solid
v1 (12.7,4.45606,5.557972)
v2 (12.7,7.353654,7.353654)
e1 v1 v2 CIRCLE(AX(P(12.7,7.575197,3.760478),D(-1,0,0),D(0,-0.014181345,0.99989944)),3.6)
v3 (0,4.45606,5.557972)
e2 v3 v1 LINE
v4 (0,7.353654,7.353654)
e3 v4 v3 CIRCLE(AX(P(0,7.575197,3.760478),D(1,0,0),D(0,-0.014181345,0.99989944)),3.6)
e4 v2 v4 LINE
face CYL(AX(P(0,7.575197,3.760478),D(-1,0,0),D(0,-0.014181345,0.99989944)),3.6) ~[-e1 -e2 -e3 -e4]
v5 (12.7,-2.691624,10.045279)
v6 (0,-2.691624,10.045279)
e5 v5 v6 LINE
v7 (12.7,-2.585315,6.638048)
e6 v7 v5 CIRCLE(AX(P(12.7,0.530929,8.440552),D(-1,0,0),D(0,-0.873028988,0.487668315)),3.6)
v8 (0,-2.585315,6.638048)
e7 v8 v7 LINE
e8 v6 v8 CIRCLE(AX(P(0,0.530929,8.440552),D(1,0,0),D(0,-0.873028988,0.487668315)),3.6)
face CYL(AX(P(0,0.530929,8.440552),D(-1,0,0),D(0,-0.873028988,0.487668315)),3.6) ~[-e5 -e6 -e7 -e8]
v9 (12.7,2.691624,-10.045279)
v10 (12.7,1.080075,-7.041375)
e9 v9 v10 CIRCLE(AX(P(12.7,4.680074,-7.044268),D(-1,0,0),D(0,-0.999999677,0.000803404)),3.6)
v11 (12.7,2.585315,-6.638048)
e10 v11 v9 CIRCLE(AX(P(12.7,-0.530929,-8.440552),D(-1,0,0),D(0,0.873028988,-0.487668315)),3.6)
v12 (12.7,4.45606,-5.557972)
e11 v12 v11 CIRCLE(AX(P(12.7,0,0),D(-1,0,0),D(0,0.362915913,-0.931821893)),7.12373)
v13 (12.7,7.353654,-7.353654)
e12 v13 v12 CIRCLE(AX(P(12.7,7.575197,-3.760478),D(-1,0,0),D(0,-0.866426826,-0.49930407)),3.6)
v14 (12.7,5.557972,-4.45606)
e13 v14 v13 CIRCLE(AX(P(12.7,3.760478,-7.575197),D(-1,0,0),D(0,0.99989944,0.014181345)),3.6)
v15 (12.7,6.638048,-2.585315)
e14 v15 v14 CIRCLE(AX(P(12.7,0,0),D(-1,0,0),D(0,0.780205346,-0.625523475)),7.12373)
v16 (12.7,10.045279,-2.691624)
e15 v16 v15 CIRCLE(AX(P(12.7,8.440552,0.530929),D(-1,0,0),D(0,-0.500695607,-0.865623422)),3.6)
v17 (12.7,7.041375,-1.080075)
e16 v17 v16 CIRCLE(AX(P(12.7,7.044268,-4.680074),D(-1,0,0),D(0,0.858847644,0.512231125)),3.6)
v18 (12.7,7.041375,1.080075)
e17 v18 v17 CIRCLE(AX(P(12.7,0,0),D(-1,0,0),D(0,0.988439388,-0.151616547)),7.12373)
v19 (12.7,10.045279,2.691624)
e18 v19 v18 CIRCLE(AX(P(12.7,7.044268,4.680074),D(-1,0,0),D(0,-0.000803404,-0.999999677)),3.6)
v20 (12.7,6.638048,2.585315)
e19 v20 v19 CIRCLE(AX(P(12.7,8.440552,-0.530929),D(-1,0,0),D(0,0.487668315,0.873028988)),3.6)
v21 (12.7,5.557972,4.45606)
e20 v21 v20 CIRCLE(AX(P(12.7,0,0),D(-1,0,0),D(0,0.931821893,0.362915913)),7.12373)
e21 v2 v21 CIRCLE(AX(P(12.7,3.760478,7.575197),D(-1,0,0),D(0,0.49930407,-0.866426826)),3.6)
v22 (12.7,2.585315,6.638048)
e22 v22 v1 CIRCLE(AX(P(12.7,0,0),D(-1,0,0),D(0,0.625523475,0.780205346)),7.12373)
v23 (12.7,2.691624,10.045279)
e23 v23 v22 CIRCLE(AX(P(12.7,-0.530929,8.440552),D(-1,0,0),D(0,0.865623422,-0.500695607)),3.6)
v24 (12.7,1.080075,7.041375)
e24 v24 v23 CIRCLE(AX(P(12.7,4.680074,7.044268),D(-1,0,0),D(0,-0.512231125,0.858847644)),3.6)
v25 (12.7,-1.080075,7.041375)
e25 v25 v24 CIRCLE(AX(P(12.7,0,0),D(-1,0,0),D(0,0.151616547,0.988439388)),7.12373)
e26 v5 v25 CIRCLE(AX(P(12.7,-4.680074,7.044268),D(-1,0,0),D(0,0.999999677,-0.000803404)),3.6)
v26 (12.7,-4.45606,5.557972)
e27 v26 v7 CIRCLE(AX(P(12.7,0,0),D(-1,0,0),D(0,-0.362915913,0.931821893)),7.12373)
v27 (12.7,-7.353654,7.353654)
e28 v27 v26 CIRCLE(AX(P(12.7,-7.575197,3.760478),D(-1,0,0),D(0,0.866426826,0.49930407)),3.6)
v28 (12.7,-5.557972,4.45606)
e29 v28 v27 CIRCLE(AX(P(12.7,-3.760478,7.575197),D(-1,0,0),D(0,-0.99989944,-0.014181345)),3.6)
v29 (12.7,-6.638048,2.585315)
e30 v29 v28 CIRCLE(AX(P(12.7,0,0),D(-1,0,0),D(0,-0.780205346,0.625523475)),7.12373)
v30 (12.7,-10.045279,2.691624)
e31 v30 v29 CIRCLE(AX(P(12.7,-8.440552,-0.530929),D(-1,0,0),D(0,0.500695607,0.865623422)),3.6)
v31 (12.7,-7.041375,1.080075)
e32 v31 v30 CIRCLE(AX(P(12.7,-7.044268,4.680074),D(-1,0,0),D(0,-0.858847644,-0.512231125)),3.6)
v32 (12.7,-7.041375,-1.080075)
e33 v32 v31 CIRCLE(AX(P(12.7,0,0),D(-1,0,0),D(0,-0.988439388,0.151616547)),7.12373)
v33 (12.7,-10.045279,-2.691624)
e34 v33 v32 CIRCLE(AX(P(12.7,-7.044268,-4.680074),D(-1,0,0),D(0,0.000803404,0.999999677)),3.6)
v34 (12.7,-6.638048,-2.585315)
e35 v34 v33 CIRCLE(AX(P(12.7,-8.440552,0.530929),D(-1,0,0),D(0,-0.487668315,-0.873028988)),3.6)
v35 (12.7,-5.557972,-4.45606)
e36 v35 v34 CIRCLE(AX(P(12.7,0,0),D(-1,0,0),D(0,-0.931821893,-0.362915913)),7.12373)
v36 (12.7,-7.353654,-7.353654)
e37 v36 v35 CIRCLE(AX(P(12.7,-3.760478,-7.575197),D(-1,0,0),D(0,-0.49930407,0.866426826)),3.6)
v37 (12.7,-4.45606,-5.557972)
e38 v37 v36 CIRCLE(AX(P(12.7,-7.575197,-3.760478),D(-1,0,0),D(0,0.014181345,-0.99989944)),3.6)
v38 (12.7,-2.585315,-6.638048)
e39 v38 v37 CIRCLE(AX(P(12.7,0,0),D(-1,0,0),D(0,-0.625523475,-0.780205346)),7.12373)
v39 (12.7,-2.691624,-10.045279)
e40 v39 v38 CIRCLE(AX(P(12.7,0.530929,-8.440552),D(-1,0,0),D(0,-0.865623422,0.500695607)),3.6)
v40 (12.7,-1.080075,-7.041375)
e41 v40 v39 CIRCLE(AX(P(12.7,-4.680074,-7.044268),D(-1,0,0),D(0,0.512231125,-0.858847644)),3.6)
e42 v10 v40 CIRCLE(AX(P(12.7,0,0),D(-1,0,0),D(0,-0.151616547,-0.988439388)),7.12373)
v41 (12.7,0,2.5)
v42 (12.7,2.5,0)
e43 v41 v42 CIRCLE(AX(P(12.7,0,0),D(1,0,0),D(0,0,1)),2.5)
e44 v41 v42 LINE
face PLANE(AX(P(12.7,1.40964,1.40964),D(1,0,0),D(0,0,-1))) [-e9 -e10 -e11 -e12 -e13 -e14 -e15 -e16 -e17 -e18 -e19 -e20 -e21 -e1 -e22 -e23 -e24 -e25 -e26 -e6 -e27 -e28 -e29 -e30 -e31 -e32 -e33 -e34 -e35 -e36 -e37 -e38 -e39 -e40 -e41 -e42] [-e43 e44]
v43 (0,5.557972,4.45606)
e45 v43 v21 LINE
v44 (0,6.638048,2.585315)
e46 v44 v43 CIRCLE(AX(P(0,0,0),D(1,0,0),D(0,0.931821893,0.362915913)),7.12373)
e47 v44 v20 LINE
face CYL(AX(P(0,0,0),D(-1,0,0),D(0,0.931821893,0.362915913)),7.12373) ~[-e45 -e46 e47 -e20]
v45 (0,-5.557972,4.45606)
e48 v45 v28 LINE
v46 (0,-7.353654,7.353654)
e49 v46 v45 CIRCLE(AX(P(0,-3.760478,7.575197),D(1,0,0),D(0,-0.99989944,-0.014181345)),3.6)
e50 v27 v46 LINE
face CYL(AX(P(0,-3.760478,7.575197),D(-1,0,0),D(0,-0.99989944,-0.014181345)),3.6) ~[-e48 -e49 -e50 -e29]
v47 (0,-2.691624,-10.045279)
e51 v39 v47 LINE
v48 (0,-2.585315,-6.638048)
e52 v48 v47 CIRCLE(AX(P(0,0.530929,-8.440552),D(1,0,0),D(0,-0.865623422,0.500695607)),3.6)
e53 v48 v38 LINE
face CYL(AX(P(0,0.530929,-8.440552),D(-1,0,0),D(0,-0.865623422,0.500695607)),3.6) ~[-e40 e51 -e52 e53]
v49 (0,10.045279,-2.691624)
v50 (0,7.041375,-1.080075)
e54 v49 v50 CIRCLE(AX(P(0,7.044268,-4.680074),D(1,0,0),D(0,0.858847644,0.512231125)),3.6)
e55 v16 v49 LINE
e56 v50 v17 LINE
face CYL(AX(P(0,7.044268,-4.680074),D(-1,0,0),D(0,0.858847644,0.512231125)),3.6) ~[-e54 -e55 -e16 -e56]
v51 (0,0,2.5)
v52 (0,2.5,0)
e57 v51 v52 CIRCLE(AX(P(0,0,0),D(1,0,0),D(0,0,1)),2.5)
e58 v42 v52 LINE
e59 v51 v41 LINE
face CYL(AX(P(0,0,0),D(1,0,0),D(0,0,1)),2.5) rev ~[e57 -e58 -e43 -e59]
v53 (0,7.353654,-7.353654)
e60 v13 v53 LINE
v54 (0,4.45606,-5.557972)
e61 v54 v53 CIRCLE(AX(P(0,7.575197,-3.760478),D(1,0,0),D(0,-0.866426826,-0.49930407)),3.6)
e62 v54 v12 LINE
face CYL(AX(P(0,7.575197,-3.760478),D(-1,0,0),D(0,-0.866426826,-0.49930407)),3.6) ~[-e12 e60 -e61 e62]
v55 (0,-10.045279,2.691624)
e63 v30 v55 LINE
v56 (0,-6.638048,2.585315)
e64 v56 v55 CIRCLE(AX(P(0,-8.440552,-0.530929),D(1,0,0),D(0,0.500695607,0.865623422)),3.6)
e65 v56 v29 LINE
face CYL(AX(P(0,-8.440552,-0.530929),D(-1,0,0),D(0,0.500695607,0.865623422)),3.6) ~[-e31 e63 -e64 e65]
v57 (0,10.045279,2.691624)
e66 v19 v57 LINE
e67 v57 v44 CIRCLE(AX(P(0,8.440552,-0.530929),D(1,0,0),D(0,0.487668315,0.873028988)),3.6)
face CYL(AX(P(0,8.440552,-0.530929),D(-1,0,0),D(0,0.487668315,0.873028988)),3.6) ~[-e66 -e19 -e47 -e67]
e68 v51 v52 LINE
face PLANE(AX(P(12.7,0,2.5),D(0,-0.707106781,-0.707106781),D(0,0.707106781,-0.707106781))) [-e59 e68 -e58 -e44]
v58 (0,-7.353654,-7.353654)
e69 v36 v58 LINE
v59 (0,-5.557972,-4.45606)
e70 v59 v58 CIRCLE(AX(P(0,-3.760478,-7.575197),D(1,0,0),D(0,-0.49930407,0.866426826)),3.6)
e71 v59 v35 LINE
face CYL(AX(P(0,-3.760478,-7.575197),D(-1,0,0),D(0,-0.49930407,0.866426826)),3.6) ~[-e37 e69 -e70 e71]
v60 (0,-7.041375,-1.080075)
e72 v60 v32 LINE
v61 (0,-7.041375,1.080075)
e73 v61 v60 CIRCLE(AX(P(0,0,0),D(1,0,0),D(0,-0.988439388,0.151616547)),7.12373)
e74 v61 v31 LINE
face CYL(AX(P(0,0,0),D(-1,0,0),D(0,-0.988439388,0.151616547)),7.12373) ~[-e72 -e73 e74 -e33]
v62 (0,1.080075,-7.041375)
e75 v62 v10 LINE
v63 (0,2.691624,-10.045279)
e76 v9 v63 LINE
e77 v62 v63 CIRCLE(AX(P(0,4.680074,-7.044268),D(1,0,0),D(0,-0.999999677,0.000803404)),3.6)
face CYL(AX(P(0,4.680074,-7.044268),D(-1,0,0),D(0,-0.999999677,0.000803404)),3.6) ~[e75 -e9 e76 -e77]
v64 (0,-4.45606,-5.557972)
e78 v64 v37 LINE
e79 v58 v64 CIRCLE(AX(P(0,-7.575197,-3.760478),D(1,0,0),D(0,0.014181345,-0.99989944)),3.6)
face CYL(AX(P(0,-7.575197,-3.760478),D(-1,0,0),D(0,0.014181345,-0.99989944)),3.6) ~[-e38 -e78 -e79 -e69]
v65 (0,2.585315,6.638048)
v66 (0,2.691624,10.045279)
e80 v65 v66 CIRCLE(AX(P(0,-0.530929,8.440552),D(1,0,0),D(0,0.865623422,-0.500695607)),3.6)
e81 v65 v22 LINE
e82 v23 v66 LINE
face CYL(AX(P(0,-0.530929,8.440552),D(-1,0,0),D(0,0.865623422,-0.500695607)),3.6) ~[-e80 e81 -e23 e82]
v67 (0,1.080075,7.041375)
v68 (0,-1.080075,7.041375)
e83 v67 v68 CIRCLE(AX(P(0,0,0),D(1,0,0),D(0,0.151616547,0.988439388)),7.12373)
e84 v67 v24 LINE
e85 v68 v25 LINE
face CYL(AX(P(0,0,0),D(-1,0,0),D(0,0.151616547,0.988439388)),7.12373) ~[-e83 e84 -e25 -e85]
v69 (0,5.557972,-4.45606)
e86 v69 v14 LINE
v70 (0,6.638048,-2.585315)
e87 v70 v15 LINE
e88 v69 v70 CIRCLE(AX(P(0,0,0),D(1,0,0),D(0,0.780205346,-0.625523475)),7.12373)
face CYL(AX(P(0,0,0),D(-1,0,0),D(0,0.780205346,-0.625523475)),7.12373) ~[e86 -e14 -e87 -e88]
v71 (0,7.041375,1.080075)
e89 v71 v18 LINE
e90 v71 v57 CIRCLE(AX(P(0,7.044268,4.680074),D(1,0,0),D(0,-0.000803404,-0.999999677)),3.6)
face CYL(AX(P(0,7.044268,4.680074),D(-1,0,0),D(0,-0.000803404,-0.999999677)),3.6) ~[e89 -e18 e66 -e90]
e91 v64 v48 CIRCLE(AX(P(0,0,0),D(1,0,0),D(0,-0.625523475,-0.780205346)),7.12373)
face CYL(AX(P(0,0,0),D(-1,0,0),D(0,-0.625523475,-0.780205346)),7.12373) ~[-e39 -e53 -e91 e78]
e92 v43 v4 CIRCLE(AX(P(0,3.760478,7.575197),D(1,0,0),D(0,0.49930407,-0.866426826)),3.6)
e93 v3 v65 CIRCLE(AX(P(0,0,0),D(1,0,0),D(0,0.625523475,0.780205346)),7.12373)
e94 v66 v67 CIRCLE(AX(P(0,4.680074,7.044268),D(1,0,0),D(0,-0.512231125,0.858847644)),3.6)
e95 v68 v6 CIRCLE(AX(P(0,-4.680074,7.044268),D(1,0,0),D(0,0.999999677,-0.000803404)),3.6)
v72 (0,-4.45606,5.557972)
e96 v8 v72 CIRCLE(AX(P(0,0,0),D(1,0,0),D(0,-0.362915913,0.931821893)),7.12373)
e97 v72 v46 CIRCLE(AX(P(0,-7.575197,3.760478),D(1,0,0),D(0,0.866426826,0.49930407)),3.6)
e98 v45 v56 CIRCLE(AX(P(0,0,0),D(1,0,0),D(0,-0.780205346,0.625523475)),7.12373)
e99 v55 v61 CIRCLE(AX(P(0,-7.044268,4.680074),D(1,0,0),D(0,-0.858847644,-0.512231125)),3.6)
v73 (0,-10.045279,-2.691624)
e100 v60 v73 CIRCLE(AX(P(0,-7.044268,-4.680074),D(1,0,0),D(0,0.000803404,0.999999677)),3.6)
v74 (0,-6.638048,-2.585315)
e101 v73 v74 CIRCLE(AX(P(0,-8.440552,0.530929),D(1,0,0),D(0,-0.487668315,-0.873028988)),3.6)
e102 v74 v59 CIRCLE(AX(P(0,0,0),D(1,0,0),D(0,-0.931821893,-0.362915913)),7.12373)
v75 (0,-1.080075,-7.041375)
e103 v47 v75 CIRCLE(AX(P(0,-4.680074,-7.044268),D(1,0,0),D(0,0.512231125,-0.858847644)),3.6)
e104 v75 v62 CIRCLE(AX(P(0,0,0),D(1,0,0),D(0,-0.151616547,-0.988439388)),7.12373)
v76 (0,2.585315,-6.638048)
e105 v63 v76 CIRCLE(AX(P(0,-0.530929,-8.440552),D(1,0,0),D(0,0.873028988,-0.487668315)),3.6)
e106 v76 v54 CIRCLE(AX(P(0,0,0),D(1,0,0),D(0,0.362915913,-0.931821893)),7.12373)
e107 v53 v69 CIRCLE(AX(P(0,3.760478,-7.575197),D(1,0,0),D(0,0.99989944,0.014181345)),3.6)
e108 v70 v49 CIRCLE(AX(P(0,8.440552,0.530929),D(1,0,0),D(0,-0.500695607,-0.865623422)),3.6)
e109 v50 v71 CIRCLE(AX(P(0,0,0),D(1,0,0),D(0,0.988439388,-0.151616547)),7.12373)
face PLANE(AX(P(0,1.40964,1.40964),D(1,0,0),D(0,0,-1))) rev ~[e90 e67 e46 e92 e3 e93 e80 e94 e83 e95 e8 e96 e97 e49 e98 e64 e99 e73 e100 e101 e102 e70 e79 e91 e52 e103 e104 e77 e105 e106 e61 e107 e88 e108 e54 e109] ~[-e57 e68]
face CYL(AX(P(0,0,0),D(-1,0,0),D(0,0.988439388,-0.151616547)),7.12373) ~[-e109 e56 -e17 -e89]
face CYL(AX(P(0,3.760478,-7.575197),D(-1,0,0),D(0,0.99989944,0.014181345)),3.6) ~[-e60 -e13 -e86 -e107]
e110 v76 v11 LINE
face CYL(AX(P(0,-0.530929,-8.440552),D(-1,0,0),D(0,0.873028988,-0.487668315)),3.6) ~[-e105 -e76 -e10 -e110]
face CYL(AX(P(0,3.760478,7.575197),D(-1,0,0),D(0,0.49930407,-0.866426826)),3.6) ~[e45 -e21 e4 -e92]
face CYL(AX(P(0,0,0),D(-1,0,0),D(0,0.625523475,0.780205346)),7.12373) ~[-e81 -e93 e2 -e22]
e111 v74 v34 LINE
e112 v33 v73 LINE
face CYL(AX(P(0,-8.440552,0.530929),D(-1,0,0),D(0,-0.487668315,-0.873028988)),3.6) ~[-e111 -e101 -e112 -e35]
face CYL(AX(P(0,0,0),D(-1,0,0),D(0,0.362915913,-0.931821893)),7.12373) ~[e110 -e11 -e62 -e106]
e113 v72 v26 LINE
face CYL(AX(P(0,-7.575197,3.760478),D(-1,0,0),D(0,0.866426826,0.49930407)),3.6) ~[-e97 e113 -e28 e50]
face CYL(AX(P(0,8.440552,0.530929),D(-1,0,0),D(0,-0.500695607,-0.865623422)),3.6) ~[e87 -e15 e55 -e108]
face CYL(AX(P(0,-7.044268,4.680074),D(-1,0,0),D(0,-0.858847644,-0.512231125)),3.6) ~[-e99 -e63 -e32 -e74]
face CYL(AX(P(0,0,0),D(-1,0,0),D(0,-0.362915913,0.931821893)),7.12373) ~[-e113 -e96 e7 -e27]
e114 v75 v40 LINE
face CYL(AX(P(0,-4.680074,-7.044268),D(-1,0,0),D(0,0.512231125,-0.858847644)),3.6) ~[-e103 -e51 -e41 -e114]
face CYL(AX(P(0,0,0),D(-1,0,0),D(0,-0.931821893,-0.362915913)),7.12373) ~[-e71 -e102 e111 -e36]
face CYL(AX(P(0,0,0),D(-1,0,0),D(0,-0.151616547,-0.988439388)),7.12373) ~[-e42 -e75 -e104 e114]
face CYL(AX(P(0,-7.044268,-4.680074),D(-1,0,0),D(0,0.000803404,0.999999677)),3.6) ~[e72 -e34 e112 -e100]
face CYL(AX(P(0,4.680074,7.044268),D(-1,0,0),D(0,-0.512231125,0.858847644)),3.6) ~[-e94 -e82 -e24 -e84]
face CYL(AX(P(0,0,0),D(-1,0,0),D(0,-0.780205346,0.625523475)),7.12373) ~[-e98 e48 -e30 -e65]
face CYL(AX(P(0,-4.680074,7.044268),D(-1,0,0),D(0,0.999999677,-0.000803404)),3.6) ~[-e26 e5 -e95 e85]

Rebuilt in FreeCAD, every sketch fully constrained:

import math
import FreeCAD as App
import Part
import Sketcher

V = App.Vector
Q = App.Units.Quantity


def add_polygon(sketch, points):
    """Adds a closed chain of lines whose ends are joined by coincident constraints."""
    first, n = sketch.GeometryCount, len(points)
    for a, b in zip(points, points[1:] + points[:1]):
        sketch.addGeometry(Part.LineSegment(App.Vector(*a, 0), App.Vector(*b, 0)), False)
    for i in range(n):
        sketch.addConstraint(Sketcher.Constraint("Coincident", first + i, 2, first + (i + 1) % n, 1))

doc = App.newDocument("Part")
body = doc.addObject("PartDesign::Body", "Body")

sketch1 = body.newObject("Sketcher::SketchObject", "Sketch")
sketch1.AttachmentSupport = (doc.getObject("XZ_Plane"), [""])
sketch1.MapMode = "FlatFace"
add_polygon(sketch1, [(0, -10), (0, 0), (13, 0), (13, -10)])
sketch1.addConstraint([
    Sketcher.Constraint("Vertical", 0),
    Sketcher.Constraint("Horizontal", 1),
    Sketcher.Constraint("Vertical", 2),
    Sketcher.Constraint("Horizontal", 3),
    Sketcher.Constraint("Coincident", 0, 2, -1, 1),
    Sketcher.Constraint("DistanceX", 1, 1, 1, 2, Q("12.7 mm")),
    Sketcher.Constraint("DistanceY", 0, 1, 0, 2, Q("10.5 mm")),
])
revolution = body.newObject("PartDesign::Revolution", "Revolution")
revolution.Profile = sketch1
revolution.ReferenceAxis = (sketch1, ["H_Axis"])
revolution.Angle = 360

sketch2 = body.newObject("Sketcher::SketchObject", "Sketch001")
sketch2.AttachmentSupport = (doc.getObject("YZ_Plane"), [""])
sketch2.MapMode = "FlatFace"
sketch2.addGeometry([
    Part.ArcOfCircle(Part.Circle(V(0, 0, 0), V(0, 0, 1), 7.1), math.radians(-8.72), math.radians(8.72)),
    Part.ArcOfCircle(Part.Circle(V(7, -4.7, 0), V(0, 0, 1), 3.6), math.radians(31), math.radians(90)),
    Part.ArcOfCircle(Part.Circle(V(0, 0, 0), V(0, 0, 1), 10.5), math.radians(-16), math.radians(16)),
    Part.ArcOfCircle(Part.Circle(V(7, 4.7, 0), V(0, 0, 1), 3.6), math.radians(-90), math.radians(-31)),
], False)
sketch2.addConstraint([
    Sketcher.Constraint("Coincident", 0, 1, 1, 2),
    Sketcher.Constraint("Coincident", 1, 1, 2, 1),
    Sketcher.Constraint("Coincident", 2, 2, 3, 2),
    Sketcher.Constraint("Coincident", 3, 1, 0, 2),
    Sketcher.Constraint("Coincident", 0, 3, -1, 1),
    Sketcher.Constraint("Coincident", 2, 3, -1, 1),
    Sketcher.Constraint("Equal", 1, 3),
    Sketcher.Constraint("Symmetric", 1, 3, 3, 3, -1),
    Sketcher.Constraint("Radius", 1, Q("3.6 mm")),
    Sketcher.Constraint("Radius", 2, Q("10.5254 mm")),
    Sketcher.Constraint("Radius", 0, Q("7.12373 mm")),
    Sketcher.Constraint("DistanceX", -1, 1, 1, 1, Q("10.136119 mm")),
    Sketcher.Constraint("DistanceY", 1, 3, 3, 3, Q("9.360148 mm")),
])
pocket1 = body.newObject("PartDesign::Pocket", "Pocket")
pocket1.Profile = sketch2
pocket1.Type = "ThroughAll"
pocket1.Reversed = True
doc.recompute()

polarpattern = body.newObject("PartDesign::PolarPattern", "PolarPattern")
polarpattern.Originals = [pocket1]
polarpattern.Axis = (doc.getObject("X_Axis"), [""])
polarpattern.Angle = 360
polarpattern.Occurrences = 12
body.Tip = polarpattern

sketch3 = body.newObject("Sketcher::SketchObject", "Sketch002")
sketch3.AttachmentSupport = (doc.getObject("YZ_Plane"), [""])
sketch3.MapMode = "FlatFace"
sketch3.addGeometry(Part.Circle(V(0, 0, 0), V(0, 0, 1), 2.5), False)
sketch3.addConstraint([
    Sketcher.Constraint("Coincident", 0, 3, -1, 1),
    Sketcher.Constraint("Diameter", 0, Q("5 mm")),
])
pocket2 = body.newObject("PartDesign::Pocket", "Pocket001")
pocket2.Profile = sketch3
pocket2.Length = 50.800102
pocket2.Midplane = True

sketch4 = body.newObject("Sketcher::SketchObject", "Sketch003")
sketch4.AttachmentSupport = (doc.getObject("YZ_Plane"), [""])
sketch4.MapMode = "FlatFace"
sketch4.AttachmentOffset = App.Placement(V(0, 0, 12.7), App.Rotation())
sketch4.addGeometry([
    Part.LineSegment(V(0, 2.5, 0), V(2.5, 0, 0)),
    Part.ArcOfCircle(Part.Circle(V(0, 0, 0), V(0, 0, 1), 2.5), math.radians(0), math.radians(90)),
], False)
sketch4.addConstraint([
    Sketcher.Constraint("Coincident", 0, 1, 1, 2),
    Sketcher.Constraint("Coincident", 1, 1, 0, 2),
    Sketcher.Constraint("Coincident", 1, 3, -1, 1),
    Sketcher.Constraint("PointOnObject", 0, 1, -2),
    Sketcher.Constraint("PointOnObject", 1, 1, -1),
    Sketcher.Constraint("Radius", 1, Q("2.5 mm")),
])
pad1 = body.newObject("PartDesign::Pad", "Pad")
pad1.Profile = sketch4
pad1.Length = 12.7
pad1.Reversed = True

doc.recompute()
